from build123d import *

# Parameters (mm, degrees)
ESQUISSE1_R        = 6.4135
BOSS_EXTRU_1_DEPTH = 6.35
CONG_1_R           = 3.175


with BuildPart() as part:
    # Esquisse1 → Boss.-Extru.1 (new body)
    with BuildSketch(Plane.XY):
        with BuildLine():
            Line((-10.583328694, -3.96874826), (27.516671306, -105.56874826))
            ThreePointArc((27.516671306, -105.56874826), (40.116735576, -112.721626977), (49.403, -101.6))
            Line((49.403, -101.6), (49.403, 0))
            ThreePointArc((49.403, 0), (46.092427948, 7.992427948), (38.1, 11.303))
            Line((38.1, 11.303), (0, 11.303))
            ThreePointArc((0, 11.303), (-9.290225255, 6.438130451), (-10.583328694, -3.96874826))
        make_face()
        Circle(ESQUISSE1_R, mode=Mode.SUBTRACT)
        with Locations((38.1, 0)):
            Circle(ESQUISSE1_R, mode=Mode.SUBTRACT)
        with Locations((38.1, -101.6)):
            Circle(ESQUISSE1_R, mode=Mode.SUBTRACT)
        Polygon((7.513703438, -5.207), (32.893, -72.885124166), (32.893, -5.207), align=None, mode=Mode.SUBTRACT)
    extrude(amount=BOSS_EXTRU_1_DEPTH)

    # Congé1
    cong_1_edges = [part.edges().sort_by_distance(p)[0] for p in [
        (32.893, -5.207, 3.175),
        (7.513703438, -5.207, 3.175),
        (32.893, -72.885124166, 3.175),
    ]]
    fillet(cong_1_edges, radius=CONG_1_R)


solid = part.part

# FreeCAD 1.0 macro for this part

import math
import FreeCAD as App
import Part
import Sketcher
Q = App.Units.Quantity


def edges_at(feature, points):
    """Names of the edges that pass closest to the given points."""
    edges = feature.Shape.Edges
    near = lambda p: min(range(len(edges)), key=lambda i: edges[i].distToShape(Part.Vertex(*p))[0])
    return sorted({f"Edge{near(p) + 1}" for p in points})

doc = App.newDocument("Part")
body = doc.addObject("PartDesign::Body", "Body")

# Sketch on XY plane
sketch1 = body.newObject("Sketcher::SketchObject", "Sketch")
sketch1.AttachmentSupport = (doc.getObject("XY_Plane"), [""])
sketch1.MapMode = "FlatFace"
sketch1.addGeometry(Part.LineSegment(App.Vector(-11, -4, 0), App.Vector(28, -106, 0)), False)
sketch1.addGeometry(Part.ArcOfCircle(Part.Circle(App.Vector(38, -102, 0), App.Vector(0, 0, 1), 11), math.radians(-159), math.radians(0)), False)
sketch1.addGeometry(Part.LineSegment(App.Vector(49, -102, 0), App.Vector(49, 0, 0)), False)
sketch1.addGeometry(Part.ArcOfCircle(Part.Circle(App.Vector(38, 0, 0), App.Vector(0, 0, 1), 11), math.radians(0), math.radians(90)), False)
sketch1.addGeometry(Part.LineSegment(App.Vector(38, 11, 0), App.Vector(0, 11, 0)), False)
sketch1.addGeometry(Part.ArcOfCircle(Part.Circle(App.Vector(0, 0, 0), App.Vector(0, 0, 1), 11), math.radians(90), math.radians(201)), False)
sketch1.addGeometry(Part.Circle(App.Vector(38, -102, 0), App.Vector(0, 0, 1), 6), False)
sketch1.addGeometry(Part.Circle(App.Vector(0, 0, 0), App.Vector(0, 0, 1), 6), False)
sketch1.addGeometry(Part.LineSegment(App.Vector(33, -73, 0), App.Vector(8, -5, 0)), False)
sketch1.addGeometry(Part.LineSegment(App.Vector(8, -5, 0), App.Vector(33, -5, 0)), False)
sketch1.addGeometry(Part.LineSegment(App.Vector(33, -5, 0), App.Vector(33, -73, 0)), False)
sketch1.addGeometry(Part.Circle(App.Vector(38, 0, 0), App.Vector(0, 0, 1), 6), False)
sketch1.addConstraint(Sketcher.Constraint("Tangent", 0, 2, 1, 1))
sketch1.addConstraint(Sketcher.Constraint("Tangent", 1, 2, 2, 1))
sketch1.addConstraint(Sketcher.Constraint("Tangent", 2, 2, 3, 1))
sketch1.addConstraint(Sketcher.Constraint("Tangent", 3, 2, 4, 1))
sketch1.addConstraint(Sketcher.Constraint("Tangent", 4, 2, 5, 1))
sketch1.addConstraint(Sketcher.Constraint("Tangent", 5, 2, 0, 1))
sketch1.addConstraint(Sketcher.Constraint("Coincident", 8, 2, 9, 1))
sketch1.addConstraint(Sketcher.Constraint("Coincident", 9, 2, 10, 1))
sketch1.addConstraint(Sketcher.Constraint("Coincident", 10, 2, 8, 1))
sketch1.addConstraint(Sketcher.Constraint("Vertical", 2))
sketch1.addConstraint(Sketcher.Constraint("Horizontal", 4))
sketch1.addConstraint(Sketcher.Constraint("Horizontal", 9))
sketch1.addConstraint(Sketcher.Constraint("Vertical", 10))
sketch1.addConstraint(Sketcher.Constraint("Coincident", 5, 3, -1, 1))
sketch1.addConstraint(Sketcher.Constraint("Coincident", 7, 3, -1, 1))
sketch1.addConstraint(Sketcher.Constraint("Coincident", 6, 3, 1, 3))
sketch1.addConstraint(Sketcher.Constraint("Coincident", 11, 3, 3, 3))
sketch1.addConstraint(Sketcher.Constraint("Equal", 1, 3))
sketch1.addConstraint(Sketcher.Constraint("Equal", 3, 5))
sketch1.addConstraint(Sketcher.Constraint("Equal", 6, 7))
sketch1.addConstraint(Sketcher.Constraint("Equal", 7, 11))
sketch1.addConstraint(Sketcher.Constraint("Parallel", 0, 8))
sketch1.addConstraint(Sketcher.Constraint("DistanceY", 2, 1, 2, 2, Q("4 in")))
sketch1.addConstraint(Sketcher.Constraint("Diameter", 6, Q("0.505 in")))
sketch1.addConstraint(Sketcher.Constraint("DistanceX", 4, 2, 4, 1, Q("1.5 in")))
sketch1.addConstraint(Sketcher.Constraint("Radius", 1, Q("0.445 in")))
sketch1.addConstraint(Sketcher.Constraint("DistanceY", 8, 2, 4, 2, Q("0.65 in")))
sketch1.addConstraint(Sketcher.Constraint("DistanceX", 9, 2, 2, 2, Q("0.65 in")))
sketch1.addConstraint(Sketcher.Constraint("Distance", 8, 72.280268))
pad1 = body.newObject("PartDesign::Pad", "Pad")
pad1.Profile = sketch1
pad1.Length = Q("0.25 in")
doc.recompute()

fillet = body.newObject("PartDesign::Fillet", "Fillet")
fillet.Base = (pad1, edges_at(pad1, [(32.893, -5.207, 3.175), (7.514, -5.207, 3.175), (32.893, -72.885, 3.175)]))
fillet.Radius = Q("0.125 in")

doc.recompute()
